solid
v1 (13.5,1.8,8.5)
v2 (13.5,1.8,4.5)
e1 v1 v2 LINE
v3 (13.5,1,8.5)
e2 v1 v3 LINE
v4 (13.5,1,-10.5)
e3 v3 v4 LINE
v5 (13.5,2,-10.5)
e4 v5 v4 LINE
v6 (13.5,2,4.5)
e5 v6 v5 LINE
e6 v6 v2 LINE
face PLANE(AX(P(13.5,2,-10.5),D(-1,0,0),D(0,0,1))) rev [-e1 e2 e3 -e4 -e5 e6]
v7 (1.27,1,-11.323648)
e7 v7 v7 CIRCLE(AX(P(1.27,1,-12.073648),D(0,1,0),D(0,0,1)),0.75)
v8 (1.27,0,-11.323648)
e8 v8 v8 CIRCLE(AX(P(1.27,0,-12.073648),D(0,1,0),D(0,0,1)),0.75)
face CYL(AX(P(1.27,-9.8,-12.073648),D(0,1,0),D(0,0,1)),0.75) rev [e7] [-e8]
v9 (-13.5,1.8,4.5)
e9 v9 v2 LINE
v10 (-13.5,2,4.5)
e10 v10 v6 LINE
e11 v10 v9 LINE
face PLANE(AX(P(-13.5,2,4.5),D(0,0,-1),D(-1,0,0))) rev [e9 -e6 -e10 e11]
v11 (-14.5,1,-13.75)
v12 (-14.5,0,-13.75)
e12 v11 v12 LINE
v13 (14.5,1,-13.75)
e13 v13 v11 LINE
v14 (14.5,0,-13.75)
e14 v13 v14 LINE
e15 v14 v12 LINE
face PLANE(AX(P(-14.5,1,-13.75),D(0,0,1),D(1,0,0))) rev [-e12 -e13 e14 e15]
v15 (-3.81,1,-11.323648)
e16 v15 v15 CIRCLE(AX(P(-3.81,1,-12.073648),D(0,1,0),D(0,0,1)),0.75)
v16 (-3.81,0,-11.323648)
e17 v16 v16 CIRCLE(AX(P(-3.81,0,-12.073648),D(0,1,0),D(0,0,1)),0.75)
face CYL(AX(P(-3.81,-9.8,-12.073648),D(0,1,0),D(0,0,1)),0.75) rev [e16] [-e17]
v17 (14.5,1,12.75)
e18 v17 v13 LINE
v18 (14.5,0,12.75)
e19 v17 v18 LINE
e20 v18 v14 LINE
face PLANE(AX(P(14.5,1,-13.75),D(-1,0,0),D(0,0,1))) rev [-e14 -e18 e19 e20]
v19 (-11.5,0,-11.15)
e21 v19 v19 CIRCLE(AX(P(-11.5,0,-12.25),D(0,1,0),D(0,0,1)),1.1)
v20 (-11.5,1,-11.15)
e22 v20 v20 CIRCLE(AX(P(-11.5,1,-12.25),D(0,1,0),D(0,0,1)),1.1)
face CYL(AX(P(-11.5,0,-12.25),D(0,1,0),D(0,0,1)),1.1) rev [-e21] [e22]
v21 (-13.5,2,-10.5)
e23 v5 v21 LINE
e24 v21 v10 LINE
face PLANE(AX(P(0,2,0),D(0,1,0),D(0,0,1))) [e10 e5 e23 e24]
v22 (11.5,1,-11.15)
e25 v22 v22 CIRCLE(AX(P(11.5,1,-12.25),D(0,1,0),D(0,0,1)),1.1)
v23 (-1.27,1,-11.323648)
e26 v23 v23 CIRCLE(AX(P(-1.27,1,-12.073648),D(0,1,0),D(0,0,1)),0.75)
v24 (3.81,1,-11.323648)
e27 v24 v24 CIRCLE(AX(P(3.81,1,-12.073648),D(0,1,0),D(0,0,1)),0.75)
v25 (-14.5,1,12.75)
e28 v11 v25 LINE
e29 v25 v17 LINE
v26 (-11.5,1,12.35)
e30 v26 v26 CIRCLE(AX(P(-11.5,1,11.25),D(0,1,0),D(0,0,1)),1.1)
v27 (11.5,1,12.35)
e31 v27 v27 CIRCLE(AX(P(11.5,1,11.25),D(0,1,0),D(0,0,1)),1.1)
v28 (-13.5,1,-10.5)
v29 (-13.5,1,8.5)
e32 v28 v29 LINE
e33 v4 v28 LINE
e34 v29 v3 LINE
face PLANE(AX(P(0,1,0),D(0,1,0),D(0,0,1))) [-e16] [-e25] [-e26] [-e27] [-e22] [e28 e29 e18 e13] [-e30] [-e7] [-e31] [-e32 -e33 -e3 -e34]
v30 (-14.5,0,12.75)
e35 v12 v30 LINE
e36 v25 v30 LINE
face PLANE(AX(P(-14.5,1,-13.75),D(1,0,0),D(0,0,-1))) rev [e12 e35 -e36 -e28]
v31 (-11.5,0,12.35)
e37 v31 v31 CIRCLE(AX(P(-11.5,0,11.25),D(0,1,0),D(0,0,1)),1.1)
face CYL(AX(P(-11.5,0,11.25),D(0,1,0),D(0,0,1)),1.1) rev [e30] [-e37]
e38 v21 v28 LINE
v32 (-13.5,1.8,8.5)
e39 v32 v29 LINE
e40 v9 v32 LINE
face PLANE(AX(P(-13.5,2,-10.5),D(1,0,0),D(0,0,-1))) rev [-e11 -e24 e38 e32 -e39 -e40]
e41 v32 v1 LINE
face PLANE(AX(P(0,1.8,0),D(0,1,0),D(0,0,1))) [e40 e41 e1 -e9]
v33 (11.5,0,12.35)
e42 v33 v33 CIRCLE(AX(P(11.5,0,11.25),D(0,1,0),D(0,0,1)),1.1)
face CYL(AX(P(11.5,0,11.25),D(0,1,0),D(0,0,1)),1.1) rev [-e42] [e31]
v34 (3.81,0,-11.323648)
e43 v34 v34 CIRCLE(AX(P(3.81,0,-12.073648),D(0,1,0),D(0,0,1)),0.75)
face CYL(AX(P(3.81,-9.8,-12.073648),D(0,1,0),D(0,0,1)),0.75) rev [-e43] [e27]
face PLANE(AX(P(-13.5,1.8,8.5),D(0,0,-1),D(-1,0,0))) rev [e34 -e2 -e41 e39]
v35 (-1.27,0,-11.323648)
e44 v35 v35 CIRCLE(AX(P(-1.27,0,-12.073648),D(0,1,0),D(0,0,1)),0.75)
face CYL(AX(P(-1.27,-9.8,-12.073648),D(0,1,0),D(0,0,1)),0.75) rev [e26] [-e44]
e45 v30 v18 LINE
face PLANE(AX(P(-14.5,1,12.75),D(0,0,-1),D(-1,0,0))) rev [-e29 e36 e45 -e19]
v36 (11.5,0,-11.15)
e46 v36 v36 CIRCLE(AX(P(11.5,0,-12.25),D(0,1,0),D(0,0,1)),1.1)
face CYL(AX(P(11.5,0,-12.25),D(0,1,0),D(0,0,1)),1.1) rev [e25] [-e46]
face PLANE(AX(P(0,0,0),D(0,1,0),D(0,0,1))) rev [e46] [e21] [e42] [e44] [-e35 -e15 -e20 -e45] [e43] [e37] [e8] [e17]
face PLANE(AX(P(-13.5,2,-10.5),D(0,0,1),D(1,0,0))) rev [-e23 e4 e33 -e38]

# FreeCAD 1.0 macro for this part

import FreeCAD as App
import Part
import Sketcher

V = App.Vector

doc = App.newDocument("Part")
body = doc.addObject("PartDesign::Body", "Body")

sketch1 = doc.addObject("Sketcher::SketchObject", "Sketch")
body.addObject(sketch1)
sketch1.AttachmentSupport = (doc.XZ_Plane, [""])
sketch1.MapMode = "FlatFace"
sketch1.addGeometry(Part.LineSegment(V(-14.5, -13.75, 0), V(-14.5, 12.75, 0)), False)
sketch1.addGeometry(Part.LineSegment(V(-14.5, 12.75, 0), V(14.5, 12.75, 0)), False)
sketch1.addGeometry(Part.LineSegment(V(14.5, 12.75, 0), V(14.5, -13.75, 0)), False)
sketch1.addGeometry(Part.LineSegment(V(14.5, -13.75, 0), V(-14.5, -13.75, 0)), False)
sketch1.addConstraint(Sketcher.Constraint("Coincident", 0, 2, 1, 1))
sketch1.addConstraint(Sketcher.Constraint("Coincident", 1, 2, 2, 1))
sketch1.addConstraint(Sketcher.Constraint("Coincident", 2, 2, 3, 1))
sketch1.addConstraint(Sketcher.Constraint("Coincident", 3, 2, 0, 1))
sketch1.addConstraint(Sketcher.Constraint("Vertical", 0))
sketch1.addConstraint(Sketcher.Constraint("Horizontal", 1))
sketch1.addConstraint(Sketcher.Constraint("Vertical", 2))
sketch1.addConstraint(Sketcher.Constraint("Horizontal", 3))
sketch1.addConstraint(Sketcher.Constraint("DistanceX", 1, 1, 1, 2, 29.0))
sketch1.addConstraint(Sketcher.Constraint("DistanceY", 0, 1, 0, 2, 26.5))
sketch1.addConstraint(Sketcher.Constraint("DistanceX", 0, 2, -1, 1, 14.5))
sketch1.addConstraint(Sketcher.Constraint("DistanceY", -1, 1, 0, 2, 12.75))
pad1 = doc.addObject("PartDesign::Pad", "Pad")
body.addObject(pad1)
pad1.Profile = sketch1
pad1.Length = 1
pad1.Reversed = True

sketch2 = doc.addObject("Sketcher::SketchObject", "Sketch001")
body.addObject(sketch2)
sketch2.AttachmentSupport = (doc.XZ_Plane, [""])
sketch2.MapMode = "FlatFace"
sketch2.AttachmentOffset = App.Placement(V(0, 0, -1), App.Rotation())
sketch2.addGeometry(Part.Circle(V(-11.5, -12.25, 0), V(0, 0, 1), 1.1), False)
sketch2.addGeometry(Part.Circle(V(11.5, -12.25, 0), V(0, 0, 1), 1.1), False)
sketch2.addGeometry(Part.Circle(V(-11.5, 11.25, 0), V(0, 0, 1), 1.1), False)
sketch2.addGeometry(Part.Circle(V(11.5, 11.25, 0), V(0, 0, 1), 1.1), False)
sketch2.addConstraint(Sketcher.Constraint("Equal", 0, 1))
sketch2.addConstraint(Sketcher.Constraint("Equal", 1, 2))
sketch2.addConstraint(Sketcher.Constraint("Equal", 2, 3))
sketch2.addConstraint(Sketcher.Constraint("Symmetric", 0, 3, 1, 3, -2))
sketch2.addConstraint(Sketcher.Constraint("Symmetric", 2, 3, 3, 3, -2))
sketch2.addConstraint(Sketcher.Constraint("Vertical", 0, 3, 2, 3))
sketch2.addConstraint(Sketcher.Constraint("Diameter", 0, 2.2))
sketch2.addConstraint(Sketcher.Constraint("DistanceX", 0, 3, 1, 3, 23.0))
sketch2.addConstraint(Sketcher.Constraint("DistanceY", 0, 3, 2, 3, 23.5))
sketch2.addConstraint(Sketcher.Constraint("DistanceY", 0, 3, -1, 1, 12.25))
pocket1 = doc.addObject("PartDesign::Pocket", "Pocket")
body.addObject(pocket1)
pocket1.Profile = sketch2
pocket1.Length = 1
pocket1.Reversed = True

sketch3 = doc.addObject("Sketcher::SketchObject", "Sketch002")
body.addObject(sketch3)
sketch3.AttachmentSupport = (doc.XZ_Plane, [""])
sketch3.MapMode = "FlatFace"
sketch3.AttachmentOffset = App.Placement(V(0, 0, -1), App.Rotation())
sketch3.addGeometry(Part.LineSegment(V(-13.5, -10.5, 0), V(-13.5, 4.5, 0)), False)
sketch3.addGeometry(Part.LineSegment(V(-13.5, 4.5, 0), V(13.5, 4.5, 0)), False)
sketch3.addGeometry(Part.LineSegment(V(13.5, 4.5, 0), V(13.5, -10.5, 0)), False)
sketch3.addGeometry(Part.LineSegment(V(13.5, -10.5, 0), V(-13.5, -10.5, 0)), False)
sketch3.addConstraint(Sketcher.Constraint("Coincident", 0, 2, 1, 1))
sketch3.addConstraint(Sketcher.Constraint("Coincident", 1, 2, 2, 1))
sketch3.addConstraint(Sketcher.Constraint("Coincident", 2, 2, 3, 1))
sketch3.addConstraint(Sketcher.Constraint("Coincident", 3, 2, 0, 1))
sketch3.addConstraint(Sketcher.Constraint("Vertical", 0))
sketch3.addConstraint(Sketcher.Constraint("Horizontal", 1))
sketch3.addConstraint(Sketcher.Constraint("Vertical", 2))
sketch3.addConstraint(Sketcher.Constraint("Horizontal", 3))
sketch3.addConstraint(Sketcher.Constraint("DistanceX", 1, 1, 1, 2, 27.0))
sketch3.addConstraint(Sketcher.Constraint("DistanceY", 0, 1, 0, 2, 15.0))
sketch3.addConstraint(Sketcher.Constraint("DistanceX", 0, 2, -1, 1, 13.5))
sketch3.addConstraint(Sketcher.Constraint("DistanceY", -1, 1, 0, 2, 4.5))
pad2 = doc.addObject("PartDesign::Pad", "Pad001")
body.addObject(pad2)
pad2.Profile = sketch3
pad2.Length = 1
pad2.Reversed = True

sketch4 = doc.addObject("Sketcher::SketchObject", "Sketch003")
body.addObject(sketch4)
sketch4.AttachmentSupport = (doc.XZ_Plane, [""])
sketch4.MapMode = "FlatFace"
sketch4.AttachmentOffset = App.Placement(V(0, 0, -1), App.Rotation())
sketch4.addGeometry(Part.LineSegment(V(-13.5, -10.5, 0), V(-13.5, 8.5, 0)), False)
sketch4.addGeometry(Part.LineSegment(V(-13.5, 8.5, 0), V(13.5, 8.5, 0)), False)
sketch4.addGeometry(Part.LineSegment(V(13.5, 8.5, 0), V(13.5, -10.5, 0)), False)
sketch4.addGeometry(Part.LineSegment(V(13.5, -10.5, 0), V(-13.5, -10.5, 0)), False)
sketch4.addConstraint(Sketcher.Constraint("Coincident", 0, 2, 1, 1))
sketch4.addConstraint(Sketcher.Constraint("Coincident", 1, 2, 2, 1))
sketch4.addConstraint(Sketcher.Constraint("Coincident", 2, 2, 3, 1))
sketch4.addConstraint(Sketcher.Constraint("Coincident", 3, 2, 0, 1))
sketch4.addConstraint(Sketcher.Constraint("Vertical", 0))
sketch4.addConstraint(Sketcher.Constraint("Horizontal", 1))
sketch4.addConstraint(Sketcher.Constraint("Vertical", 2))
sketch4.addConstraint(Sketcher.Constraint("Horizontal", 3))
sketch4.addConstraint(Sketcher.Constraint("DistanceX", 1, 1, 1, 2, 27.0))
sketch4.addConstraint(Sketcher.Constraint("DistanceY", 0, 1, 0, 2, 19.0))
sketch4.addConstraint(Sketcher.Constraint("DistanceX", 0, 2, -1, 1, 13.5))
sketch4.addConstraint(Sketcher.Constraint("DistanceY", -1, 1, 0, 2, 8.5))
pad3 = doc.addObject("PartDesign::Pad", "Pad002")
body.addObject(pad3)
pad3.Profile = sketch4
pad3.Length = 0.8
pad3.Reversed = True

sketch5 = doc.addObject("Sketcher::SketchObject", "Sketch004")
body.addObject(sketch5)
sketch5.AttachmentSupport = (doc.XZ_Plane, [""])
sketch5.MapMode = "FlatFace"
sketch5.AttachmentOffset = App.Placement(V(0, 0, -1), App.Rotation())
sketch5.addGeometry(Part.Circle(V(-1.27, -12.073648, 0), V(0, 0, 1), 0.75), False)
sketch5.addGeometry(Part.Circle(V(1.27, -12.073648, 0), V(0, 0, 1), 0.75), False)
sketch5.addGeometry(Part.Circle(V(3.81, -12.073648, 0), V(0, 0, 1), 0.75), False)
sketch5.addGeometry(Part.Circle(V(-3.81, -12.073648, 0), V(0, 0, 1), 0.75), False)
sketch5.addConstraint(Sketcher.Constraint("Equal", 0, 1))
sketch5.addConstraint(Sketcher.Constraint("Equal", 1, 2))
sketch5.addConstraint(Sketcher.Constraint("Equal", 2, 3))
sketch5.addConstraint(Sketcher.Constraint("Symmetric", 0, 3, 1, 3, -2))
sketch5.addConstraint(Sketcher.Constraint("Symmetric", 2, 3, 3, 3, -2))
sketch5.addConstraint(Sketcher.Constraint("Horizontal", 1, 3, 2, 3))
sketch5.addConstraint(Sketcher.Constraint("Diameter", 0, 1.5))
sketch5.addConstraint(Sketcher.Constraint("DistanceX", 0, 3, -1, 1, 1.27))
sketch5.addConstraint(Sketcher.Constraint("DistanceX", -1, 1, 2, 3, 3.81))
sketch5.addConstraint(Sketcher.Constraint("DistanceY", 0, 3, -1, 1, 12.073648))
pocket2 = doc.addObject("PartDesign::Pocket", "Pocket001")
body.addObject(pocket2)
pocket2.Profile = sketch5
pocket2.Length = 10.8
pocket2.Reversed = True

doc.recompute()
